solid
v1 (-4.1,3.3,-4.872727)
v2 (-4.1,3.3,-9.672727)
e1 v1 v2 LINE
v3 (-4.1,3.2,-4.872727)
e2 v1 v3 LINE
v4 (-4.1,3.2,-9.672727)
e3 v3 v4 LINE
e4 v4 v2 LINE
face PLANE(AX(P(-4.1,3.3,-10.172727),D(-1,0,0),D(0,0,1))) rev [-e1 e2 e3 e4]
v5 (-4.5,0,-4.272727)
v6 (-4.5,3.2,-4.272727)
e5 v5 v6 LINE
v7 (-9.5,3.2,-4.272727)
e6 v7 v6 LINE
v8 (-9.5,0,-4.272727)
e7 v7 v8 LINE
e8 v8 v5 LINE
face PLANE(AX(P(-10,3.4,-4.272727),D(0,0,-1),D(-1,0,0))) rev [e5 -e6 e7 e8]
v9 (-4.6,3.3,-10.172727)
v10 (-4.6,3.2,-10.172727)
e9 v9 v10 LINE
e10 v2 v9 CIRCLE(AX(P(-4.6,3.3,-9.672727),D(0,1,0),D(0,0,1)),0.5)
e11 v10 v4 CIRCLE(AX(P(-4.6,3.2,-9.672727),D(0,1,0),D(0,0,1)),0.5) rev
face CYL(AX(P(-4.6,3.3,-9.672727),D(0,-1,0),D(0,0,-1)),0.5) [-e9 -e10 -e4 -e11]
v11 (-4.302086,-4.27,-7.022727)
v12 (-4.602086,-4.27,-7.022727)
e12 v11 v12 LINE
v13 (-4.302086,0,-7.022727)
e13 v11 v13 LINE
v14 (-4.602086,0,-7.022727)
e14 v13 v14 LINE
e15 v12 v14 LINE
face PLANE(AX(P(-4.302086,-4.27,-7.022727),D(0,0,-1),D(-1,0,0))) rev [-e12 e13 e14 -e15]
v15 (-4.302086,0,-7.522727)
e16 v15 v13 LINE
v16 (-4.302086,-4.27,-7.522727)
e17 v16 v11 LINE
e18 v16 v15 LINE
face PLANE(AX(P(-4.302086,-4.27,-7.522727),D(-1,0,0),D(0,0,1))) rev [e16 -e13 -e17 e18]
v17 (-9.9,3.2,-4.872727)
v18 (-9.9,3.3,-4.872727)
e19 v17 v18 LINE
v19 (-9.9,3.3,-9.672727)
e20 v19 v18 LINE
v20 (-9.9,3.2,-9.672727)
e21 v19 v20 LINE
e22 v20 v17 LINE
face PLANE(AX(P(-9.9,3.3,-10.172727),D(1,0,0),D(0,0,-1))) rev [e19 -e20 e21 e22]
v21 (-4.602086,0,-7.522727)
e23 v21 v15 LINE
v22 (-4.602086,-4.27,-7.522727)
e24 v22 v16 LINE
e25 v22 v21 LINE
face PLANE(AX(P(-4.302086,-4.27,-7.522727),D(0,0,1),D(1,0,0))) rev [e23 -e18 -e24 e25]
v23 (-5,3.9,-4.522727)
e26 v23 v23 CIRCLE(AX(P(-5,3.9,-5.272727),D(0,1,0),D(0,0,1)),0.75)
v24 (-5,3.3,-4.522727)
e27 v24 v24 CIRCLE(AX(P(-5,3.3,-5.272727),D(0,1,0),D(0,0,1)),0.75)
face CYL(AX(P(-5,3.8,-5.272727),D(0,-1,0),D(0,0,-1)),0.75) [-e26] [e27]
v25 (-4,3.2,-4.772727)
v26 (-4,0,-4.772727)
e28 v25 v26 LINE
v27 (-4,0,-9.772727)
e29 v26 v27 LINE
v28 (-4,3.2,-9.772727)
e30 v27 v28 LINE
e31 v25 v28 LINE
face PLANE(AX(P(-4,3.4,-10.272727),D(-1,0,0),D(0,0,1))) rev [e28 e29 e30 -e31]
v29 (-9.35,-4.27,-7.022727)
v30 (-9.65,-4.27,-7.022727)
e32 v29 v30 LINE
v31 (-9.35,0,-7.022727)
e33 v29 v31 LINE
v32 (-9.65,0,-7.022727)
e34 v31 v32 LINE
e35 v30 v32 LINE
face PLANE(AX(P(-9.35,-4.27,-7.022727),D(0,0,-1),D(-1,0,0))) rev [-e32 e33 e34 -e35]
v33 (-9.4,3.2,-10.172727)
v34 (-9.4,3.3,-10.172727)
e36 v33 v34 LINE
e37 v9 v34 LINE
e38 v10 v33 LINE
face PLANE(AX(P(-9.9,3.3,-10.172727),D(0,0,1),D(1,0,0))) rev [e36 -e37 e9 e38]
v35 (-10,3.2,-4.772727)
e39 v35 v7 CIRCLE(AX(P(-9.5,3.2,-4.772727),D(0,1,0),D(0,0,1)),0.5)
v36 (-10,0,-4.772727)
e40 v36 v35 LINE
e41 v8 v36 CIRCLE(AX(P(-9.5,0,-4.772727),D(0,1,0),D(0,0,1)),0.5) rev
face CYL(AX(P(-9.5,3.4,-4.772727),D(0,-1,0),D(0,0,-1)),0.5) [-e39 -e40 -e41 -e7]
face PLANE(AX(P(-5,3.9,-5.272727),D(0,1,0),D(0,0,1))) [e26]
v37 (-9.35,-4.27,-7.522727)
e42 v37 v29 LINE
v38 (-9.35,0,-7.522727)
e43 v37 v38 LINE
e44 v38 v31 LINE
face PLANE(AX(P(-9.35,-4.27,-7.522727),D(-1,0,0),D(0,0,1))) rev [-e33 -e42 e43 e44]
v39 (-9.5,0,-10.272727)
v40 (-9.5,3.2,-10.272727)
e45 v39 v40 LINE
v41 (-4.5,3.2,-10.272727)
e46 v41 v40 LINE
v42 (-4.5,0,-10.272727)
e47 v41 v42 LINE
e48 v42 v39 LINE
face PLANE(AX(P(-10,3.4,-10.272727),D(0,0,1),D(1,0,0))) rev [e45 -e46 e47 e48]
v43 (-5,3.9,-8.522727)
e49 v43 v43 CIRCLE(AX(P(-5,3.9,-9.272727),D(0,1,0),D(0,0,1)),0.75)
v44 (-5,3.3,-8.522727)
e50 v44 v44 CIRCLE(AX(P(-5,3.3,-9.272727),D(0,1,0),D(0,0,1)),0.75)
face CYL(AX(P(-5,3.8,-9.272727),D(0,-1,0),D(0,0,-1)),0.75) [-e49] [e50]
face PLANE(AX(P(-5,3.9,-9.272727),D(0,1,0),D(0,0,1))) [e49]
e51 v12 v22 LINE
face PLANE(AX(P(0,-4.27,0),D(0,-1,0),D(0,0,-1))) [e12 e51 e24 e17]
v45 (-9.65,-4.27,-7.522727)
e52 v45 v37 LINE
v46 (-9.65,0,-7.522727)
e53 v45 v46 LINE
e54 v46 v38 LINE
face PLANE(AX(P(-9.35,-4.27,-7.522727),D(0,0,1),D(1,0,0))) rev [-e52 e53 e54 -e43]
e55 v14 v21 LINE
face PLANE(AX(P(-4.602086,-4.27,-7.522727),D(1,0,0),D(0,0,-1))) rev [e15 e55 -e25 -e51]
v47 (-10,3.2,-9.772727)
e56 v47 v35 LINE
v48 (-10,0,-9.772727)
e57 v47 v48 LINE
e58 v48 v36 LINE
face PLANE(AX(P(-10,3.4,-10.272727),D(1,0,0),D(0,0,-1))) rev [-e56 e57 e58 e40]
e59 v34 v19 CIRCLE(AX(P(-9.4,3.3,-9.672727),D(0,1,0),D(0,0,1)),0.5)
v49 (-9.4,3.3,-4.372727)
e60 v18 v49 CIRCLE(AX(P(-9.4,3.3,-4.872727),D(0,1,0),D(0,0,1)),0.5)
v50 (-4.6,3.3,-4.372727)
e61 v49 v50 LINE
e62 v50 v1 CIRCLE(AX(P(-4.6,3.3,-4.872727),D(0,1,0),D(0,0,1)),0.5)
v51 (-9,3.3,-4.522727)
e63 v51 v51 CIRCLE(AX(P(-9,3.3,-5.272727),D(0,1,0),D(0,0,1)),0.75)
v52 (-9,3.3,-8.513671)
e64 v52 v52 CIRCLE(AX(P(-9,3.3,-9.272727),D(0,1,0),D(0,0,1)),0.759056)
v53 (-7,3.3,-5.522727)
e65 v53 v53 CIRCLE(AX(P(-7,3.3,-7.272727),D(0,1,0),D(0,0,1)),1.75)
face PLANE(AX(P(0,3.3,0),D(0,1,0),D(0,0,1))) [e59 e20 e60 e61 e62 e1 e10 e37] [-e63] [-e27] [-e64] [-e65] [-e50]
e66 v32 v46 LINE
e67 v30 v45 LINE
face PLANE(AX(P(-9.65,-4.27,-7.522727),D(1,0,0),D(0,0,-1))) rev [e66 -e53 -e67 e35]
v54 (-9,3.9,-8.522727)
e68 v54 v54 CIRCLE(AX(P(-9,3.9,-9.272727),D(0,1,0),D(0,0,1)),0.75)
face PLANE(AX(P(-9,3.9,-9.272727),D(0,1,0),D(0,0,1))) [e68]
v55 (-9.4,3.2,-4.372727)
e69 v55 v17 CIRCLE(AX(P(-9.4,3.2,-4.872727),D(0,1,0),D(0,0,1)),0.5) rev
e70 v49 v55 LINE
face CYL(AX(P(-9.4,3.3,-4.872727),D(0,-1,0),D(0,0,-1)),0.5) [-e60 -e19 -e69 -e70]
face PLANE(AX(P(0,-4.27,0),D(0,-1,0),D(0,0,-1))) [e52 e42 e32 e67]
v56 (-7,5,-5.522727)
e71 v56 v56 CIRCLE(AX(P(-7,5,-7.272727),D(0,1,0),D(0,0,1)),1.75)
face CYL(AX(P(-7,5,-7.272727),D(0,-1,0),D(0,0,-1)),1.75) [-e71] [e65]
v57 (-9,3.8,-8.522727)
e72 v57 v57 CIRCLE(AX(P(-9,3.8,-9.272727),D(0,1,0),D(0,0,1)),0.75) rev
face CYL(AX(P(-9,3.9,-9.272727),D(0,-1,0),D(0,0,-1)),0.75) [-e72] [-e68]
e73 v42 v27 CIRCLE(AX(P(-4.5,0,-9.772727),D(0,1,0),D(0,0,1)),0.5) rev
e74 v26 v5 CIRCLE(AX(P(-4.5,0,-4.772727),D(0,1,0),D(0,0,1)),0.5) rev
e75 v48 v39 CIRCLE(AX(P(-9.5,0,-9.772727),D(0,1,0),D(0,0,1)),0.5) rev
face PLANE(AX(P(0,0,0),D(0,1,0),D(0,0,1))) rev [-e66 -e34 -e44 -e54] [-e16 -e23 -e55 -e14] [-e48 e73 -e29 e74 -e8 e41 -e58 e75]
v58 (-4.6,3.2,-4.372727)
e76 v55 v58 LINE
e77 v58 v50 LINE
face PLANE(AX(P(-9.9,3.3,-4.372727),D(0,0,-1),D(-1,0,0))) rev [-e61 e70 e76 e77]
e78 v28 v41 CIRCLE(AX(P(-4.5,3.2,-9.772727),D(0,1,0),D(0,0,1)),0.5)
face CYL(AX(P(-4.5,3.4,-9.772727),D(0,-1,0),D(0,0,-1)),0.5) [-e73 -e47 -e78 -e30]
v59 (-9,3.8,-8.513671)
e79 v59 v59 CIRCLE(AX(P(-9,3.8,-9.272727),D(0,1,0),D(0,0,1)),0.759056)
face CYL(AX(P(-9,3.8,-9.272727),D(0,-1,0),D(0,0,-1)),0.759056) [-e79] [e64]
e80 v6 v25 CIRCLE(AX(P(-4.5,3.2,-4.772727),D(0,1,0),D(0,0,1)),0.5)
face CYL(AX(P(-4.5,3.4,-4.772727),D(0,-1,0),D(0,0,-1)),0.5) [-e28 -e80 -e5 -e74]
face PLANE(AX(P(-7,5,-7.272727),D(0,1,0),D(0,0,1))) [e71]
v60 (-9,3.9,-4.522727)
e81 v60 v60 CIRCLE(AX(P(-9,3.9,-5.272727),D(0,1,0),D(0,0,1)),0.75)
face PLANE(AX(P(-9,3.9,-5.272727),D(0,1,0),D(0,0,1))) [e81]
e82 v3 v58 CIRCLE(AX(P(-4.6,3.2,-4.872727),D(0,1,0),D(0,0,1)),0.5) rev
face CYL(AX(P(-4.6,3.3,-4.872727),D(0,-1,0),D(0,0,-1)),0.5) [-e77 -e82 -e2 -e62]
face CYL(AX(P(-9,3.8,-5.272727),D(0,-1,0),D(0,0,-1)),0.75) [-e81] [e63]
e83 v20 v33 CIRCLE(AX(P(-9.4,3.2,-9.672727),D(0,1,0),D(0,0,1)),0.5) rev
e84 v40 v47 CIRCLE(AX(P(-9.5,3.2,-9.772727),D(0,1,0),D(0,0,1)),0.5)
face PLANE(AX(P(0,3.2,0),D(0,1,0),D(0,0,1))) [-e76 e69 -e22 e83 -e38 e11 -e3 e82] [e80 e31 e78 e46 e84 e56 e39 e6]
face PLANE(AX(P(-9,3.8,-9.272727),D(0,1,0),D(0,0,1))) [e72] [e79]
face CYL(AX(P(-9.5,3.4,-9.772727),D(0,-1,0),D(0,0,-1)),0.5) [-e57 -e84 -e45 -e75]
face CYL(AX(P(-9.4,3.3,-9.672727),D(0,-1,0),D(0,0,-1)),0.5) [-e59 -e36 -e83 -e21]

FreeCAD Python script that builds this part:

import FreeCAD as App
import Part
import Sketcher

V = App.Vector


def edges_at(feature, points):
    """Names of the edges that pass closest to the given points."""
    edges = feature.Shape.Edges
    near = lambda p: min(range(len(edges)), key=lambda i: edges[i].distToShape(Part.Vertex(*p))[0])
    return sorted({f"Edge{near(p) + 1}" for p in points})


def add_polygon(sketch, points):
    """Adds a closed chain of lines whose ends are joined by coincident constraints."""
    first, n = sketch.GeometryCount, len(points)
    for a, b in zip(points, points[1:] + points[:1]):
        sketch.addGeometry(Part.LineSegment(App.Vector(*a, 0), App.Vector(*b, 0)), False)
    for i in range(n):
        sketch.addConstraint(Sketcher.Constraint("Coincident", first + i, 2, first + (i + 1) % n, 1))

doc = App.newDocument("Part")
params = doc.addObject("Spreadsheet::Sheet", "Params")
for row, (alias, value) in enumerate([
    ("sketch1_width", "6 mm"),
    ("pad1_length", "3.4 mm"),
    ("sketch2_diameter", "3.5 mm"),
    ("pad2_length", "1.6 mm"),
    ("sketch3_diameter", "1.5 mm"),
    ("pad3_length", "0.5 mm"),
    ("sketch4_width", "0.3 mm"),
    ("sketch4_height", "0.5 mm"),
    ("pad4_length", "4.27 mm"),
    ("sketch5_width", "6 mm"),
    ("pocket1_length", "0.6 mm"),
    ("sketch6_width", "6 mm"),
    ("pad5_length", "0.6 mm"),
    ("sketch7_width", "6 mm"),
    ("pocket2_length", "0.2 mm"),
    ("sketch8_width", "5.8 mm"),
    ("pad6_length", "0.1 mm"),
    ("fillet_radius", "0.5 mm"),
    ("fillet2_radius", "0.5 mm"),
    ("sketch9_diameter", "3.5 mm"),
    ("sketch9_diameter2", "1.5 mm"),
    ("pad7_length", "0.5 mm"),
], start=1):
    params.set(f"A{row}", alias)
    params.set(f"B{row}", "=" + value)
    params.setAlias(f"B{row}", alias)

body = doc.addObject("PartDesign::Body", "Body")
body.AllowCompound = True

# Sketch on XZ plane
sketch1 = body.newObject("Sketcher::SketchObject", "Sketch")
sketch1.AttachmentSupport = (doc.getObject("XZ_Plane"), [""])
sketch1.MapMode = "FlatFace"
add_polygon(sketch1, [(-10, -10.272727), (-10, -4.272727), (-4, -4.272727), (-4, -10.272727)])  # lines 0-3
sketch1.addConstraint([
    Sketcher.Constraint("Vertical", 0),
    Sketcher.Constraint("Horizontal", 1),
    Sketcher.Constraint("Vertical", 2),
    Sketcher.Constraint("Horizontal", 3),
    Sketcher.Constraint("Equal", 3, 0),
    Sketcher.Constraint("DistanceX", 1, 1, 1, 2, 6.0),
    Sketcher.Constraint("DistanceX", 0, 2, -1, 1, 10.0),
    Sketcher.Constraint("DistanceY", 0, 2, -1, 1, 4.272727),
])
sketch1.setExpression("Constraints[9]", "Params.sketch1_width")
pad1 = body.newObject("PartDesign::Pad", "Pad")
pad1.Profile = sketch1
pad1.setExpression("Length", "Params.pad1_length")
pad1.Reversed = True

# Sketch on XZ plane
sketch2 = body.newObject("Sketcher::SketchObject", "Sketch001")
sketch2.AttachmentSupport = (doc.getObject("XZ_Plane"), [""])
sketch2.MapMode = "FlatFace"
sketch2.AttachmentOffset = App.Placement(V(0, 0, -3.4), App.Rotation())
sketch2.addGeometry(Part.Circle(V(-7, -7.272727, 0), V(0, 0, 1), 1.75), False)
sketch2.addConstraint([
    Sketcher.Constraint("Diameter", 0, 3.5),
    Sketcher.Constraint("DistanceX", 0, 3, -1, 1, 7.0),
    Sketcher.Constraint("DistanceY", 0, 3, -1, 1, 7.272727),
])
sketch2.setExpression("Constraints[0]", "Params.sketch2_diameter")
pad2 = body.newObject("PartDesign::Pad", "Pad001")
pad2.Profile = sketch2
pad2.setExpression("Length", "Params.pad2_length")
pad2.Reversed = True

# Sketch on XZ plane
sketch3 = body.newObject("Sketcher::SketchObject", "Sketch002")
sketch3.AttachmentSupport = (doc.getObject("XZ_Plane"), [""])
sketch3.MapMode = "FlatFace"
sketch3.AttachmentOffset = App.Placement(V(0, 0, -3.4), App.Rotation())
sketch3.addGeometry([
    Part.Circle(V(-9, -9.272727, 0), V(0, 0, 1), 0.75),
    Part.Circle(V(-5, -9.272727, 0), V(0, 0, 1), 0.75),
    Part.Circle(V(-9, -5.272727, 0), V(0, 0, 1), 0.75),
    Part.Circle(V(-5, -5.272727, 0), V(0, 0, 1), 0.75),
], False)
sketch3.addConstraint([
    Sketcher.Constraint("Equal", 0, 1),
    Sketcher.Constraint("Equal", 1, 2),
    Sketcher.Constraint("Equal", 2, 3),
    Sketcher.Constraint("Horizontal", 0, 3, 1, 3),
    Sketcher.Constraint("Horizontal", 2, 3, 3, 3),
    Sketcher.Constraint("Vertical", 0, 3, 2, 3),
    Sketcher.Constraint("Vertical", 1, 3, 3, 3),
    Sketcher.Constraint("Diameter", 0, 1.5),
    Sketcher.Constraint("DistanceX", 0, 3, -1, 1, 9.0),
    Sketcher.Constraint("DistanceX", 1, 3, -1, 1, 5.0),
    Sketcher.Constraint("DistanceY", 0, 3, 2, 3, 4.0),
    Sketcher.Constraint("DistanceY", 0, 3, -1, 1, 9.272727),
])
sketch3.setExpression("Constraints[7]", "Params.sketch3_diameter")
pad3 = body.newObject("PartDesign::Pad", "Pad002")
pad3.Profile = sketch3
pad3.setExpression("Length", "Params.pad3_length")
pad3.Reversed = True

# Sketch on XZ plane
sketch4 = body.newObject("Sketcher::SketchObject", "Sketch003")
sketch4.AttachmentSupport = (doc.getObject("XZ_Plane"), [""])
sketch4.MapMode = "FlatFace"
add_polygon(sketch4, [(-9.65, -7.022727), (-9.65, -7.522727), (-9.35, -7.522727), (-9.35, -7.022727)])  # lines 0-3
add_polygon(sketch4, [(-4.602086, -7.022727), (-4.602086, -7.522727), (-4.302086, -7.522727), (-4.302086, -7.022727)])  # lines 4-7
sketch4.addConstraint([
    Sketcher.Constraint("Vertical", 0),
    Sketcher.Constraint("Horizontal", 1),
    Sketcher.Constraint("Vertical", 2),
    Sketcher.Constraint("Horizontal", 3),
    Sketcher.Constraint("Vertical", 4),
    Sketcher.Constraint("Horizontal", 5),
    Sketcher.Constraint("Vertical", 6),
    Sketcher.Constraint("Horizontal", 7),
    Sketcher.Constraint("Horizontal", 1, 2, 4, 2),
    Sketcher.Constraint("Horizontal", 3, 2, 6, 2),
    Sketcher.Constraint("Equal", 3, 5),
    Sketcher.Constraint("DistanceX", 1, 1, 1, 2, 0.3),
    Sketcher.Constraint("DistanceY", 0, 2, 0, 1, 0.5),
    Sketcher.Constraint("DistanceX", 0, 2, -1, 1, 9.65),
    Sketcher.Constraint("DistanceY", 0, 2, -1, 1, 7.522727),
    Sketcher.Constraint("DistanceX", 4, 2, -1, 1, 4.602086),
])
sketch4.setExpression("Constraints[19]", "Params.sketch4_width")
sketch4.setExpression("Constraints[20]", "Params.sketch4_height")
pad4 = body.newObject("PartDesign::Pad", "Pad003")
pad4.Profile = sketch4
pad4.setExpression("Length", "Params.pad4_length")

# Sketch on XZ plane
sketch5 = body.newObject("Sketcher::SketchObject", "Sketch004")
sketch5.AttachmentSupport = (doc.getObject("XZ_Plane"), [""])
sketch5.MapMode = "FlatFace"
sketch5.AttachmentOffset = App.Placement(V(0, 0, -3.4), App.Rotation())
add_polygon(sketch5, [(-10, -10.272727), (-10, -4.272727), (-4, -4.272727), (-4, -10.272727)])  # lines 0-3
sketch5.addConstraint([
    Sketcher.Constraint("Vertical", 0),
    Sketcher.Constraint("Horizontal", 1),
    Sketcher.Constraint("Vertical", 2),
    Sketcher.Constraint("Horizontal", 3),
    Sketcher.Constraint("Equal", 3, 0),
    Sketcher.Constraint("DistanceX", 1, 1, 1, 2, 6.0),
    Sketcher.Constraint("DistanceX", 0, 2, -1, 1, 10.0),
    Sketcher.Constraint("DistanceY", 0, 2, -1, 1, 4.272727),
])
sketch5.setExpression("Constraints[9]", "Params.sketch5_width")
pocket1 = body.newObject("PartDesign::Pocket", "Pocket")
pocket1.Profile = sketch5
pocket1.setExpression("Length", "Params.pocket1_length")
pocket1.Reversed = True

# Sketch on XZ plane
sketch6 = body.newObject("Sketcher::SketchObject", "Sketch005")
sketch6.AttachmentSupport = (doc.getObject("XZ_Plane"), [""])
sketch6.MapMode = "FlatFace"
sketch6.AttachmentOffset = App.Placement(V(0, 0, -2.8), App.Rotation())
add_polygon(sketch6, [(-10, -10.272727), (-10, -4.272727), (-4, -4.272727), (-4, -10.272727)])  # lines 0-3
sketch6.addConstraint([
    Sketcher.Constraint("Vertical", 0),
    Sketcher.Constraint("Horizontal", 1),
    Sketcher.Constraint("Vertical", 2),
    Sketcher.Constraint("Horizontal", 3),
    Sketcher.Constraint("Equal", 3, 0),
    Sketcher.Constraint("DistanceX", 1, 1, 1, 2, 6.0),
    Sketcher.Constraint("DistanceX", 0, 2, -1, 1, 10.0),
    Sketcher.Constraint("DistanceY", 0, 2, -1, 1, 4.272727),
])
sketch6.setExpression("Constraints[9]", "Params.sketch6_width")
pad5 = body.newObject("PartDesign::Pad", "Pad004")
pad5.Profile = sketch6
pad5.setExpression("Length", "Params.pad5_length")
pad5.Reversed = True

# Sketch on XZ plane
sketch7 = body.newObject("Sketcher::SketchObject", "Sketch006")
sketch7.AttachmentSupport = (doc.getObject("XZ_Plane"), [""])
sketch7.MapMode = "FlatFace"
sketch7.AttachmentOffset = App.Placement(V(0, 0, -3.4), App.Rotation())
add_polygon(sketch7, [(-10, -10.272727), (-10, -4.272727), (-4, -4.272727), (-4, -10.272727)])  # lines 0-3
sketch7.addConstraint([
    Sketcher.Constraint("Vertical", 0),
    Sketcher.Constraint("Horizontal", 1),
    Sketcher.Constraint("Vertical", 2),
    Sketcher.Constraint("Horizontal", 3),
    Sketcher.Constraint("Equal", 3, 0),
    Sketcher.Constraint("DistanceX", 1, 1, 1, 2, 6.0),
    Sketcher.Constraint("DistanceX", 0, 2, -1, 1, 10.0),
    Sketcher.Constraint("DistanceY", 0, 2, -1, 1, 4.272727),
])
sketch7.setExpression("Constraints[9]", "Params.sketch7_width")
pocket2 = body.newObject("PartDesign::Pocket", "Pocket001")
pocket2.Profile = sketch7
pocket2.setExpression("Length", "Params.pocket2_length")
pocket2.Reversed = True

# Sketch on XZ plane
sketch8 = body.newObject("Sketcher::SketchObject", "Sketch007")
sketch8.AttachmentSupport = (doc.getObject("XZ_Plane"), [""])
sketch8.MapMode = "FlatFace"
sketch8.AttachmentOffset = App.Placement(V(0, 0, -3.2), App.Rotation())
add_polygon(sketch8, [(-9.9, -10.172727), (-9.9, -4.372727), (-4.1, -4.372727), (-4.1, -10.172727)])  # lines 0-3
sketch8.addConstraint([
    Sketcher.Constraint("Vertical", 0),
    Sketcher.Constraint("Horizontal", 1),
    Sketcher.Constraint("Vertical", 2),
    Sketcher.Constraint("Horizontal", 3),
    Sketcher.Constraint("Equal", 3, 0),
    Sketcher.Constraint("DistanceX", 1, 1, 1, 2, 5.8),
    Sketcher.Constraint("DistanceX", 0, 2, -1, 1, 9.9),
    Sketcher.Constraint("DistanceY", 0, 2, -1, 1, 4.372727),
])
sketch8.setExpression("Constraints[9]", "Params.sketch8_width")
pad6 = body.newObject("PartDesign::Pad", "Pad005")
pad6.Profile = sketch8
pad6.setExpression("Length", "Params.pad6_length")
pad6.Reversed = True
doc.recompute()

fillet = body.newObject("PartDesign::Fillet", "Fillet")
fillet.Base = (pad6, edges_at(pad6, [
    (-9.9, 3.25, -10.173),
    (-9.9, 3.25, -4.373),
    (-4.1, 3.25, -4.373),
    (-4.1, 3.25, -10.173),
]))
fillet.setExpression("Radius", "Params.fillet_radius")
doc.recompute()

fillet2 = body.newObject("PartDesign::Fillet", "Fillet001")
fillet2.Base = (fillet, edges_at(fillet, [
    (-10, 1.6, -10.273),
    (-10, 1.6, -4.273),
    (-4, 1.6, -4.273),
    (-4, 1.6, -10.273),
]))
fillet2.setExpression("Radius", "Params.fillet2_radius")

# Sketch on XZ plane
sketch9 = body.newObject("Sketcher::SketchObject", "Sketch008")
sketch9.AttachmentSupport = (doc.getObject("XZ_Plane"), [""])
sketch9.MapMode = "FlatFace"
sketch9.AttachmentOffset = App.Placement(V(0, 0, -3.3), App.Rotation())
sketch9.addGeometry([
    Part.Circle(V(-7, -7.272727, 0), V(0, 0, 1), 1.75),  # 0
    Part.Circle(V(-9, -9.272727, 0), V(0, 0, 1), 0.759056),  # 1
    Part.Circle(V(-5, -9.272727, 0), V(0, 0, 1), 0.75),  # 2
    Part.Circle(V(-5, -5.272727, 0), V(0, 0, 1), 0.75),  # 3
    Part.Circle(V(-9, -5.272727, 0), V(0, 0, 1), 0.75),  # 4
], False)
sketch9.addConstraint([
    Sketcher.Constraint("Equal", 2, 3),
    Sketcher.Constraint("Equal", 3, 4),
    Sketcher.Constraint("Horizontal", 1, 3, 2, 3),
    Sketcher.Constraint("Horizontal", 3, 3, 4, 3),
    Sketcher.Constraint("Vertical", 2, 3, 3, 3),
    Sketcher.Constraint("Vertical", 1, 3, 4, 3),
    Sketcher.Constraint("Diameter", 0, 3.5),
    Sketcher.Constraint("Diameter", 2, 1.5),
    Sketcher.Constraint("DistanceX", 0, 3, -1, 1, 7.0),
    Sketcher.Constraint("DistanceX", 1, 3, -1, 1, 9.0),
    Sketcher.Constraint("DistanceX", 2, 3, -1, 1, 5.0),
    Sketcher.Constraint("DistanceY", 1, 3, 0, 3, 2.0),
    Sketcher.Constraint("DistanceY", 0, 3, 3, 3, 2.0),
    Sketcher.Constraint("Diameter", 1, 1.518112),
    Sketcher.Constraint("DistanceY", 0, 3, -1, 1, 7.272727),
])
sketch9.setExpression("Constraints[6]", "Params.sketch9_diameter")
sketch9.setExpression("Constraints[7]", "Params.sketch9_diameter2")
pad7 = body.newObject("PartDesign::Pad", "Pad006")
pad7.Profile = sketch9
pad7.setExpression("Length", "Params.pad7_length")
pad7.Reversed = True

doc.recompute()
